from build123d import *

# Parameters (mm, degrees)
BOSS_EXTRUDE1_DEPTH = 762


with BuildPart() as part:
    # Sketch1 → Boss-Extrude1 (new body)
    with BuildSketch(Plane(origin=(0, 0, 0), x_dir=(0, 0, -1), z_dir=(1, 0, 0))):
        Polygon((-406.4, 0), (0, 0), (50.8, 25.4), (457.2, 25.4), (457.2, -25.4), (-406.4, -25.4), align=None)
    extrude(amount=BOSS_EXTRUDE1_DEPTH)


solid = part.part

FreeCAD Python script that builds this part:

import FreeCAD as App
import Part
import Sketcher
Q = App.Units.Quantity

doc = App.newDocument("Part")
body = doc.addObject("PartDesign::Body", "Body")

sketch1 = body.newObject("Sketcher::SketchObject", "Sketch")
sketch1.AttachmentSupport = (doc.getObject("YZ_Plane"), [""])
sketch1.MapMode = "FlatFace"
sketch1.addGeometry([
    Part.LineSegment(App.Vector(0, 0, 0), App.Vector(0, 406.4, 0)),
    Part.LineSegment(App.Vector(0, 406.4, 0), App.Vector(-25.4, 406.4, 0)),
    Part.LineSegment(App.Vector(-25.4, 406.4, 0), App.Vector(-25.4, -457.2, 0)),
    Part.LineSegment(App.Vector(-25.4, -457.2, 0), App.Vector(25.4, -457.2, 0)),
    Part.LineSegment(App.Vector(25.4, -457.2, 0), App.Vector(25.4, -50.8, 0)),
    Part.LineSegment(App.Vector(25.4, -50.8, 0), App.Vector(0, 0, 0)),
], False)
sketch1.addConstraint([
    Sketcher.Constraint("Coincident", 0, 2, 1, 1),
    Sketcher.Constraint("Coincident", 1, 2, 2, 1),
    Sketcher.Constraint("Coincident", 2, 2, 3, 1),
    Sketcher.Constraint("Coincident", 3, 2, 4, 1),
    Sketcher.Constraint("Coincident", 4, 2, 5, 1),
    Sketcher.Constraint("Coincident", 5, 2, 0, 1),
    Sketcher.Constraint("Vertical", 0),
    Sketcher.Constraint("Horizontal", 1),
    Sketcher.Constraint("Vertical", 2),
    Sketcher.Constraint("Horizontal", 3),
    Sketcher.Constraint("Vertical", 4),
    Sketcher.Constraint("Coincident", 5, 2, -1, 1),
    Sketcher.Constraint("Equal", 0, 4),
    Sketcher.Constraint("DistanceX", 1, 2, 1, 1, Q("1 in")),
    Sketcher.Constraint("DistanceX", 3, 1, 3, 2, Q("2 in")),
    Sketcher.Constraint("DistanceY", 0, 1, 0, 2, Q("16 in")),
    Sketcher.Constraint("DistanceY", 2, 2, 2, 1, Q("34 in")),
])
pad1 = body.newObject("PartDesign::Pad", "Pad")
pad1.Profile = sketch1
pad1.Length = Q("30 in")

doc.recompute()
